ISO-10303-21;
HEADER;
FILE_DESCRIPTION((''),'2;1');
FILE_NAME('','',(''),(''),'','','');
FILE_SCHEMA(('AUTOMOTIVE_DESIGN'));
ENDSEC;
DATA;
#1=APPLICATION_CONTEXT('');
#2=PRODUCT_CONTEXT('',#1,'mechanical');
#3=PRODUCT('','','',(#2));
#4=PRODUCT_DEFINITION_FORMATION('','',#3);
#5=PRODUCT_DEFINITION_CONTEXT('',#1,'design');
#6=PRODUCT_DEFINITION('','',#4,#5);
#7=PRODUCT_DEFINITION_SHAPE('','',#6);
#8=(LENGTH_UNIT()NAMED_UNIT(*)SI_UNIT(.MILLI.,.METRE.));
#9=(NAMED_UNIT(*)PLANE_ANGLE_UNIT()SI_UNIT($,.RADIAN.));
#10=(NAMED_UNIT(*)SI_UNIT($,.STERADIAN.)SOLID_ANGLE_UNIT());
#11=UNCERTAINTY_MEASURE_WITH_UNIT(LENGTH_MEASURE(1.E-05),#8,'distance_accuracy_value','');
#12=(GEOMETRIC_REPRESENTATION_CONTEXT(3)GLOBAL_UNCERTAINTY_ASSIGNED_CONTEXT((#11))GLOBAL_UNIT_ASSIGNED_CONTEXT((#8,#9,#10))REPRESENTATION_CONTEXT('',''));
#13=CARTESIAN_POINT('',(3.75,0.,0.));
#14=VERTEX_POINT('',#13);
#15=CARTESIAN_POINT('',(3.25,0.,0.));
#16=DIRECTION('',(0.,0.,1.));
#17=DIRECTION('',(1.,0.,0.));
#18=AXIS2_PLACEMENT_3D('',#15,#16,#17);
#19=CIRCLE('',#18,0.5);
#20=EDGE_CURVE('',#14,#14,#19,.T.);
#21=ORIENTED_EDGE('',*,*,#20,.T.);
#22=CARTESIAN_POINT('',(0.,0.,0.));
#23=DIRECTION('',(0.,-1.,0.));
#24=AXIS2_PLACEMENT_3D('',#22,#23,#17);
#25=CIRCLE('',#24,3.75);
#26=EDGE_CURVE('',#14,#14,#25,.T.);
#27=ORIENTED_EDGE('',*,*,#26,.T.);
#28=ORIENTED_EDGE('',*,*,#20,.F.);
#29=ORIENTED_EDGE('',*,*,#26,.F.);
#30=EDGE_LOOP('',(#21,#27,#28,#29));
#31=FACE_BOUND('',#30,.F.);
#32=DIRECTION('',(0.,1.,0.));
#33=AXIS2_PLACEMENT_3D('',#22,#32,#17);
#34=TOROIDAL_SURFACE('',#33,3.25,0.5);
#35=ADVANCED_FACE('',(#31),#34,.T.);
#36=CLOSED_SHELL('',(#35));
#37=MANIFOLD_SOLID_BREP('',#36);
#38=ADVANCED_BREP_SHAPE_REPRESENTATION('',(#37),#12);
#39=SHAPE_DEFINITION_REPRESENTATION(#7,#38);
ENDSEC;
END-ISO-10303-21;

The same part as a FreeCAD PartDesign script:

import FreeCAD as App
import Part
import Sketcher

doc = App.newDocument("Part")
body = doc.addObject("PartDesign::Body", "Body")

# Sketch on XY plane
sketch1 = body.newObject("Sketcher::SketchObject", "Sketch")
sketch1.AttachmentSupport = (doc.getObject("XY_Plane"), [""])
sketch1.MapMode = "FlatFace"
sketch1.addGeometry(Part.Circle(App.Vector(3.2, 0, 0), App.Vector(0, 0, 1), 0.5), False)
sketch1.addConstraint([
    Sketcher.Constraint("PointOnObject", 0, 3, -1),
    Sketcher.Constraint("Diameter", 0, 1.0),
    Sketcher.Constraint("DistanceX", -1, 1, 0, 3, 3.25),
])
revolution = body.newObject("PartDesign::Revolution", "Revolution")
revolution.Profile = sketch1
revolution.ReferenceAxis = (sketch1, ["V_Axis"])
revolution.Angle = 360

doc.recompute()
